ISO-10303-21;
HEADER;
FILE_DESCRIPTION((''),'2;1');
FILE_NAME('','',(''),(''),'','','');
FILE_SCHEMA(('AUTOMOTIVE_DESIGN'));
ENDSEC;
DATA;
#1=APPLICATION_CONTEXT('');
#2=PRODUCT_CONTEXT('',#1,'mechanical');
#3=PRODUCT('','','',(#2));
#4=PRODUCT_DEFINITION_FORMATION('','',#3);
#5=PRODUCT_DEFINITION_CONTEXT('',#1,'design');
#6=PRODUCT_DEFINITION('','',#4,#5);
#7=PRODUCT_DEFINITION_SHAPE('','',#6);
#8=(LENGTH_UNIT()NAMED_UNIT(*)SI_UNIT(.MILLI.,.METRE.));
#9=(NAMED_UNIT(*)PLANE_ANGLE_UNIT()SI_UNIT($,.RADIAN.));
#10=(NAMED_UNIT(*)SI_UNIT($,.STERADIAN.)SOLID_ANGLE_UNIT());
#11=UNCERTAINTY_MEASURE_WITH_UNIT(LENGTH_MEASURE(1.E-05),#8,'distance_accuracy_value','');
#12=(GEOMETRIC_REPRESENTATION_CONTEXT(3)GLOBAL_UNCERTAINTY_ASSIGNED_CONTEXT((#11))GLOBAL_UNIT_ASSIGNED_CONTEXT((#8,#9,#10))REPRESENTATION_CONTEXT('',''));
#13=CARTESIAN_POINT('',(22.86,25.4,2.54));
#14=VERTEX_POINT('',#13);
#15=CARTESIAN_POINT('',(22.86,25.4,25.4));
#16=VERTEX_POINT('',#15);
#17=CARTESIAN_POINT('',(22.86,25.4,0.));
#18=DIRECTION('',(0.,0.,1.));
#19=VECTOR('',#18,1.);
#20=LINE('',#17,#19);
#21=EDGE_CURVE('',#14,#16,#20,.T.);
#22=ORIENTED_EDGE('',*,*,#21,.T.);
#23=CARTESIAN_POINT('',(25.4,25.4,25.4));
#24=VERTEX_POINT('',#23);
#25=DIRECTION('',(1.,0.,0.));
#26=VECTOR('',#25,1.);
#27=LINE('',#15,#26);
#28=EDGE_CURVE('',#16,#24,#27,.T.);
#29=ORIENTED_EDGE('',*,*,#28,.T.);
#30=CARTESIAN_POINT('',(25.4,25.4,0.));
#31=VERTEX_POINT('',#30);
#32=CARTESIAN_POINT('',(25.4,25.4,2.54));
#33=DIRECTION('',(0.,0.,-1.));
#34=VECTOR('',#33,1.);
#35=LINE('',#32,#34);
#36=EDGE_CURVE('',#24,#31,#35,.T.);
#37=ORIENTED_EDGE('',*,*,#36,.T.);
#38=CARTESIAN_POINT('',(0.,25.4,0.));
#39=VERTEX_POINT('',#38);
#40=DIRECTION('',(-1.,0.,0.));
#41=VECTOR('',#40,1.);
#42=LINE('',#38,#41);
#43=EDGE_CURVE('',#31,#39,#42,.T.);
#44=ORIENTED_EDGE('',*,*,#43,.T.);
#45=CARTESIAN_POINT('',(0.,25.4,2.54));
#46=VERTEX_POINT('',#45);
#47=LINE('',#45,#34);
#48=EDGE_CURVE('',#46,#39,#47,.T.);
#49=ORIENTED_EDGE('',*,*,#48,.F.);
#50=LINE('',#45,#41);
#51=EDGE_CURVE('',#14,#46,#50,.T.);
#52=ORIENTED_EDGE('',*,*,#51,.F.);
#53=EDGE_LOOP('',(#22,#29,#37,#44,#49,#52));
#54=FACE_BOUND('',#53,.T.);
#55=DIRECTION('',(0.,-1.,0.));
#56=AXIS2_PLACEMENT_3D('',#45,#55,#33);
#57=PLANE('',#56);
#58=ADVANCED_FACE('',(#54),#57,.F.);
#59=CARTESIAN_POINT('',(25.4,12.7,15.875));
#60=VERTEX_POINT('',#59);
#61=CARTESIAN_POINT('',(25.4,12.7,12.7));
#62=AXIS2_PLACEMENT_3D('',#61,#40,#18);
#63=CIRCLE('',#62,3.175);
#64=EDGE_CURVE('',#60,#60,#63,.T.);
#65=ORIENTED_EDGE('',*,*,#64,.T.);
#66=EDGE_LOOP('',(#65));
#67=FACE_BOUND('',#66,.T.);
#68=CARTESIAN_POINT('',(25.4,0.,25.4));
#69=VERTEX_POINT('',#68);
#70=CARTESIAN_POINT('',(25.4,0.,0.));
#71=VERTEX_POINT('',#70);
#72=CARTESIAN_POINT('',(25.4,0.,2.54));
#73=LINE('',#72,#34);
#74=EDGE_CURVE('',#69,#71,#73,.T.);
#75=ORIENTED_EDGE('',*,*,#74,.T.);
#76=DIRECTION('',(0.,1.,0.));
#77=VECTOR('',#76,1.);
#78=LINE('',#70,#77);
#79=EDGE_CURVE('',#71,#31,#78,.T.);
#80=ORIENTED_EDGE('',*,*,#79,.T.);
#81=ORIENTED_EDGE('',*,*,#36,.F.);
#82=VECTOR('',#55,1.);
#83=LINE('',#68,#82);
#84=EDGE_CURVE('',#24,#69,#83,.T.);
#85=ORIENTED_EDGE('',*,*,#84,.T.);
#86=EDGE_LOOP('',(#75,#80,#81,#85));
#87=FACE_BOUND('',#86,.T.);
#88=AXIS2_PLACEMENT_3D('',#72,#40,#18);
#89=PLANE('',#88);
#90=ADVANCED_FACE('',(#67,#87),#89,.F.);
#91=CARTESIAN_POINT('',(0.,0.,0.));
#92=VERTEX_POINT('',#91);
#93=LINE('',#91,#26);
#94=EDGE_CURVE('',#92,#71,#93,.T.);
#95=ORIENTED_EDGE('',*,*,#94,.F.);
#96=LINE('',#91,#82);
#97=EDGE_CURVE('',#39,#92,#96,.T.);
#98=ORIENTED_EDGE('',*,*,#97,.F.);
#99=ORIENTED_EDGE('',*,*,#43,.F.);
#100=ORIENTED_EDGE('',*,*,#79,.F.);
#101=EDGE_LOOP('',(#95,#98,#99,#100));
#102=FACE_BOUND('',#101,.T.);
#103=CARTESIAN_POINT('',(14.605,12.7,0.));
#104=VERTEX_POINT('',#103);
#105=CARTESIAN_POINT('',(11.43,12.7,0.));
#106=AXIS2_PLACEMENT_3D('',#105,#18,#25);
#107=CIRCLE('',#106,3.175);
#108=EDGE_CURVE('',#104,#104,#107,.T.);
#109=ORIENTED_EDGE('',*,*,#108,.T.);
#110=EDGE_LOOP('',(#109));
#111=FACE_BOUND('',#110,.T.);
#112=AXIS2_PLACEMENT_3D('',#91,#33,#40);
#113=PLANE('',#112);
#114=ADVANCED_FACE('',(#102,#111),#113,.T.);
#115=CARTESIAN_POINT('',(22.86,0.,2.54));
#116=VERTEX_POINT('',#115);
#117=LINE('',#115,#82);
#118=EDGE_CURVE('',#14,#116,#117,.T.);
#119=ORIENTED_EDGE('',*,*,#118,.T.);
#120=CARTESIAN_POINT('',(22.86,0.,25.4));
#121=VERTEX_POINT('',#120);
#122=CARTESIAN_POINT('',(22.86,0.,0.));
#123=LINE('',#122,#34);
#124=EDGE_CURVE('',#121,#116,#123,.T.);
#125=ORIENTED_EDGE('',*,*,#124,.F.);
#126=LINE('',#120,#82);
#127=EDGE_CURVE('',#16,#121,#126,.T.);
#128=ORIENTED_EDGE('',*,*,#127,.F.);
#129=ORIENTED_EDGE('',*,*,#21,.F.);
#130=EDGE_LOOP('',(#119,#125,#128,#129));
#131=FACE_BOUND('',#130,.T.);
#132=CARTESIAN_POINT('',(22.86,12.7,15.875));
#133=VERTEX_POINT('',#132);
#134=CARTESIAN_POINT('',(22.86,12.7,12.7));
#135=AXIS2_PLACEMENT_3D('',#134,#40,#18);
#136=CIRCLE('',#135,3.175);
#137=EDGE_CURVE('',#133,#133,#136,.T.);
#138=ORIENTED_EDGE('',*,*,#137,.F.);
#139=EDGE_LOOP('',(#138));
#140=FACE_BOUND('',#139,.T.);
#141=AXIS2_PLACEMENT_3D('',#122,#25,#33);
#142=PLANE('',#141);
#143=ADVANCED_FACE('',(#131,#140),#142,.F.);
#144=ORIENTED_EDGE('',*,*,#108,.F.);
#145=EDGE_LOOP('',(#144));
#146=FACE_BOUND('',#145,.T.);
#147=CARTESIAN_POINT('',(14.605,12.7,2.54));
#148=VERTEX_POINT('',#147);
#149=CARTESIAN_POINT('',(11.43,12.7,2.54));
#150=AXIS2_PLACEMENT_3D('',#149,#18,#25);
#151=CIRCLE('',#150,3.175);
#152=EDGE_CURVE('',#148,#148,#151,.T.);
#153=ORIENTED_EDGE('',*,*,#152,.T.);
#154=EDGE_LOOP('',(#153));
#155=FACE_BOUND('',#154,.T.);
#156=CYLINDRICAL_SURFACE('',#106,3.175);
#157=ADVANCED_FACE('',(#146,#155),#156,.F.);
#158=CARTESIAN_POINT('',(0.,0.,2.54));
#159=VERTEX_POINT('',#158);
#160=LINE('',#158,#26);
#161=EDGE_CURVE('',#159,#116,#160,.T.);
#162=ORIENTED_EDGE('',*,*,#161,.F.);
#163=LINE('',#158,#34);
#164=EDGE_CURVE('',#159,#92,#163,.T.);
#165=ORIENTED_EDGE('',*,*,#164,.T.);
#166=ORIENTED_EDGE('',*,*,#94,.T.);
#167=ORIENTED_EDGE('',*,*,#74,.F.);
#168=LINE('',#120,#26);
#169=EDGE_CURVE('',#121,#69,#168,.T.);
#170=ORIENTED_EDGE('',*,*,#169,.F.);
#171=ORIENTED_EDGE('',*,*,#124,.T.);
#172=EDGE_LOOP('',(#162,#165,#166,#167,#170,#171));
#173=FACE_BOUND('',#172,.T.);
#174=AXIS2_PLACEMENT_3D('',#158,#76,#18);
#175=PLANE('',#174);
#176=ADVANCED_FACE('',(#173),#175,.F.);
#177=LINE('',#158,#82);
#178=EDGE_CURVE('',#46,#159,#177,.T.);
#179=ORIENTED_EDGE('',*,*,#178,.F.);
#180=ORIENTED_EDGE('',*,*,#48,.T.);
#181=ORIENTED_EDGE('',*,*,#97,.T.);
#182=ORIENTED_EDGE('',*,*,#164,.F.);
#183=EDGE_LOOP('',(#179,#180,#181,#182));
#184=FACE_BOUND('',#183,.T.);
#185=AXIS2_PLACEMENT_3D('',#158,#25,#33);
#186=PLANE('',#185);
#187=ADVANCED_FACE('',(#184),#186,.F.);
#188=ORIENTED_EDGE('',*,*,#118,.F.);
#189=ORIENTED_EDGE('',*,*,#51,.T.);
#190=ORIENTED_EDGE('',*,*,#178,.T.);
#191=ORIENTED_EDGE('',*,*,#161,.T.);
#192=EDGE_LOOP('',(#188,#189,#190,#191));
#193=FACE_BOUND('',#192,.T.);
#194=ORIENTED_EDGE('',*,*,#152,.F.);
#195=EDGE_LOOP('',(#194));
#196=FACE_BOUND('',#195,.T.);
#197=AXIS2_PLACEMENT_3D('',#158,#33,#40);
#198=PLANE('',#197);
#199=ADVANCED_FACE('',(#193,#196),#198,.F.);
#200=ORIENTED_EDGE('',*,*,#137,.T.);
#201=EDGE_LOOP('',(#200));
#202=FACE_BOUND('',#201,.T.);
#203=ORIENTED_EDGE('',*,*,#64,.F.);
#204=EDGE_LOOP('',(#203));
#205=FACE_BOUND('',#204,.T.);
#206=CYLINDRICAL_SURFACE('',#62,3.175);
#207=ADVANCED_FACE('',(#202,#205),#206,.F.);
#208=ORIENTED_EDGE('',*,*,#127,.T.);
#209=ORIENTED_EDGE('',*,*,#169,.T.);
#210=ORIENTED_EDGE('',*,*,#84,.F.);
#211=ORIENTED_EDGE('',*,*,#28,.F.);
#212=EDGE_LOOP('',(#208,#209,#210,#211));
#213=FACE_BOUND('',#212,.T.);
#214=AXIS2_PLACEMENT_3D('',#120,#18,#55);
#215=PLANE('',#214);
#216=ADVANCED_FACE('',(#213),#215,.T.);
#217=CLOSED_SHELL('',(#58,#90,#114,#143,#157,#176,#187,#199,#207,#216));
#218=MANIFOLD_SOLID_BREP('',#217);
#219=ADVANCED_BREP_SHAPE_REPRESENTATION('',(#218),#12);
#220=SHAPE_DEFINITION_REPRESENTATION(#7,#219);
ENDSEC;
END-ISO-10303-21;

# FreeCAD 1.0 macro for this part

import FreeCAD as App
import Part
import Sketcher
from FreeCAD import Vector
Q = App.Units.Quantity

doc = App.newDocument("Part")
body = doc.addObject("PartDesign::Body", "Body")

sketch1 = doc.addObject("Sketcher::SketchObject", "Sketch")
body.addObject(sketch1)
sketch1.AttachmentSupport = (doc.XY_Plane, [""])
sketch1.MapMode = "FlatFace"
sketch1.addGeometry([
    Part.LineSegment(Vector(0, 25, 0), Vector(0, 0, 0)),
    Part.LineSegment(Vector(0, 0, 0), Vector(25, 0, 0)),
    Part.LineSegment(Vector(25, 0, 0), Vector(25, 25, 0)),
    Part.LineSegment(Vector(25, 25, 0), Vector(0, 25, 0)),
], False)
sketch1.addConstraint([
    Sketcher.Constraint("Coincident", 0, 2, 1, 1),
    Sketcher.Constraint("Coincident", 1, 2, 2, 1),
    Sketcher.Constraint("Coincident", 2, 2, 3, 1),
    Sketcher.Constraint("Coincident", 3, 2, 0, 1),
    Sketcher.Constraint("Vertical", 0),
    Sketcher.Constraint("Horizontal", 1),
    Sketcher.Constraint("Vertical", 2),
    Sketcher.Constraint("Horizontal", 3),
    Sketcher.Constraint("Coincident", 0, 2, -1, 1),
    Sketcher.Constraint("Equal", 3, 0),
    Sketcher.Constraint("DistanceX", 1, 1, 1, 2, Q("1 in")),
])
pad1 = doc.addObject("PartDesign::Pad", "Pad")
body.addObject(pad1)
pad1.Profile = sketch1
pad1.Length = Q("0.1 in")

sketch2 = doc.addObject("Sketcher::SketchObject", "Sketch001")
body.addObject(sketch2)
sketch2.AttachmentSupport = (doc.YZ_Plane, [""])
sketch2.MapMode = "FlatFace"
sketch2.AttachmentOffset = App.Placement(Vector(0, 0, 1 * 25.4), App.Rotation())
sketch2.addGeometry([
    Part.LineSegment(Vector(25, 25, 0), Vector(0, 25, 0)),
    Part.LineSegment(Vector(0, 25, 0), Vector(0, 0, 0)),
    Part.LineSegment(Vector(0, 0, 0), Vector(25, 0, 0)),
    Part.LineSegment(Vector(25, 0, 0), Vector(25, 25, 0)),
], False)
sketch2.addConstraint([
    Sketcher.Constraint("Coincident", 0, 2, 1, 1),
    Sketcher.Constraint("Coincident", 1, 2, 2, 1),
    Sketcher.Constraint("Coincident", 2, 2, 3, 1),
    Sketcher.Constraint("Coincident", 3, 2, 0, 1),
    Sketcher.Constraint("Horizontal", 0),
    Sketcher.Constraint("Vertical", 1),
    Sketcher.Constraint("Horizontal", 2),
    Sketcher.Constraint("Vertical", 3),
    Sketcher.Constraint("Coincident", 1, 2, -1, 1),
    Sketcher.Constraint("Equal", 2, 1),
    Sketcher.Constraint("DistanceX", 0, 2, 0, 1, Q("1 in")),
])
pad2 = doc.addObject("PartDesign::Pad", "Pad001")
body.addObject(pad2)
pad2.Profile = sketch2
pad2.Length = Q("0.1 in")
pad2.Reversed = True

sketch3 = doc.addObject("Sketcher::SketchObject", "Sketch002")
body.addObject(sketch3)
sketch3.AttachmentSupport = (doc.XY_Plane, [""])
sketch3.MapMode = "FlatFace"
sketch3.AttachmentOffset = App.Placement(Vector(0, 0, 0.1 * 25.4), App.Rotation())
sketch3.addGeometry(Part.Circle(Vector(11.4, 12.7, 0), Vector(0, 0, 1), 3.2), False)
sketch3.addConstraint([
    Sketcher.Constraint("Diameter", 0, Q("0.25 in")),
    Sketcher.Constraint("DistanceY", -1, 1, 0, 3, Q("0.5 in")),
    Sketcher.Constraint("DistanceX", -1, 1, 0, 3, Q("0.45 in")),
])
pocket1 = doc.addObject("PartDesign::Pocket", "Pocket")
body.addObject(pocket1)
pocket1.Profile = sketch3
pocket1.Length = Q("0.1 in")

sketch4 = doc.addObject("Sketcher::SketchObject", "Sketch003")
body.addObject(sketch4)
sketch4.AttachmentSupport = (doc.YZ_Plane, [""])
sketch4.MapMode = "FlatFace"
sketch4.AttachmentOffset = App.Placement(Vector(0, 0, 0.9 * 25.4), App.Rotation())
sketch4.addGeometry(Part.Circle(Vector(12.7, 12.7, 0), Vector(0, 0, 1), 3.2), False)
sketch4.addConstraint([
    Sketcher.Constraint("Diameter", 0, Q("0.25 in")),
    Sketcher.Constraint("DistanceX", -1, 1, 0, 3, Q("0.5 in")),
    Sketcher.Constraint("DistanceY", -1, 1, 0, 3, Q("0.5 in")),
])
pocket2 = doc.addObject("PartDesign::Pocket", "Pocket001")
body.addObject(pocket2)
pocket2.Profile = sketch4
pocket2.Length = Q("0.1 in")
pocket2.Reversed = True

doc.recompute()
